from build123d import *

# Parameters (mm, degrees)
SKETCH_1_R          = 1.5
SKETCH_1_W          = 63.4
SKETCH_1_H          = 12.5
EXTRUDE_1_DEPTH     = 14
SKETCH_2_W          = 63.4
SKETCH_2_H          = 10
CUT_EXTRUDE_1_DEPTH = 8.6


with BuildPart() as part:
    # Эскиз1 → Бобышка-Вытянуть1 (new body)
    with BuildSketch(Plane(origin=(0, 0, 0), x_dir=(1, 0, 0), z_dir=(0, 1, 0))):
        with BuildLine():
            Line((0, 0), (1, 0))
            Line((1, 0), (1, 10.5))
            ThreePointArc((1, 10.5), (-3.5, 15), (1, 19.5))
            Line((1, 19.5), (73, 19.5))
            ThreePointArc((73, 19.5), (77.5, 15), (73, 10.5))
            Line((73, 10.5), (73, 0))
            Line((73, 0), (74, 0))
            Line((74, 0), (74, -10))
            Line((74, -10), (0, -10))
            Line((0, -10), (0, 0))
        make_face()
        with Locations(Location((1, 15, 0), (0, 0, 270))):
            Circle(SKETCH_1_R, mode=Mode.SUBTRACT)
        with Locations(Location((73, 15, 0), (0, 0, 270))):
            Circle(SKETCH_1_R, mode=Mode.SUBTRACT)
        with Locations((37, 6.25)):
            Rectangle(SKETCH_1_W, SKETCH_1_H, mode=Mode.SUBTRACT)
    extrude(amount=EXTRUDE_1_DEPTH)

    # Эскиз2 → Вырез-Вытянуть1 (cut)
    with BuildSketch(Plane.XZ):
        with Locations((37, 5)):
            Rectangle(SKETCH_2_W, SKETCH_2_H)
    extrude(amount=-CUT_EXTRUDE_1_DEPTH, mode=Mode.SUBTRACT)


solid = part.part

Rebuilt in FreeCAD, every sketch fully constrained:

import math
import FreeCAD as App
import Part
import Sketcher

V = App.Vector
Q = App.Units.Quantity


def add_polygon(sketch, points):
    """Adds a closed chain of lines whose ends are joined by coincident constraints."""
    first, n = sketch.GeometryCount, len(points)
    for a, b in zip(points, points[1:] + points[:1]):
        sketch.addGeometry(Part.LineSegment(App.Vector(*a, 0), App.Vector(*b, 0)), False)
    for i in range(n):
        sketch.addConstraint(Sketcher.Constraint("Coincident", first + i, 2, first + (i + 1) % n, 1))

doc = App.newDocument("Part")
params = doc.addObject("Spreadsheet::Sheet", "Params")
for row, (alias, value) in enumerate([
    ("sketch1_diameter", "3 mm"),
    ("sketch1_radius", "4.5 mm"),
    ("sketch1_width", "1 mm"),
    ("sketch1_width2", "74 mm"),
    ("sketch1_height", "10 mm"),
    ("pad1_length", "14 mm"),
    ("sketch2_height", "10 mm"),
    ("sketch2_width", "63.4 mm"),
    ("pocket1_length", "8.6 mm"),
], start=1):
    params.set(f"A{row}", alias)
    params.set(f"B{row}", "=" + value)
    params.setAlias(f"B{row}", alias)

body = doc.addObject("PartDesign::Body", "Body")

# Sketch on XZ plane
sketch1 = doc.addObject("Sketcher::SketchObject", "Sketch")
body.addObject(sketch1)
sketch1.AttachmentSupport = (doc.XZ_Plane, [""])
sketch1.MapMode = "FlatFace"
sketch1.addGeometry(Part.LineSegment(V(1, 0, 0), V(0, 0, 0)), False)  # 0
sketch1.addGeometry(Part.LineSegment(V(0, 0, 0), V(0, 10, 0)), False)  # 1
sketch1.addGeometry(Part.LineSegment(V(0, 10, 0), V(74, 10, 0)), False)  # 2
sketch1.addGeometry(Part.LineSegment(V(74, 10, 0), V(74, 0, 0)), False)  # 3
sketch1.addGeometry(Part.LineSegment(V(74, 0, 0), V(73, 0, 0)), False)  # 4
sketch1.addGeometry(Part.LineSegment(V(73, 0, 0), V(73, -10.5, 0)), False)  # 5
sketch1.addGeometry(Part.ArcOfCircle(Part.Circle(V(73, -15, 0), V(0, 0, 1), 4.5), math.radians(-90), math.radians(90)), False)  # 6
sketch1.addGeometry(Part.LineSegment(V(73, -19.5, 0), V(1, -19.5, 0)), False)  # 7
sketch1.addGeometry(Part.ArcOfCircle(Part.Circle(V(1, -15, 0), V(0, 0, 1), 4.5), math.radians(90), math.radians(270)), False)  # 8
sketch1.addGeometry(Part.LineSegment(V(1, -10.5, 0), V(1, 0, 0)), False)  # 9
add_polygon(sketch1, [(5.3, 0), (5.3, -12.5), (68.7, -12.5), (68.7, 0)])  # lines 10-13
sketch1.addGeometry(Part.Circle(V(73, -15, 0), V(0, 0, 1), 1.5), False)  # 14
sketch1.addGeometry(Part.Circle(V(1, -15, 0), V(0, 0, 1), 1.5), False)  # 15
sketch1.addConstraint([
    Sketcher.Constraint("Coincident", 0, 2, 1, 1),
    Sketcher.Constraint("Coincident", 1, 2, 2, 1),
    Sketcher.Constraint("Coincident", 2, 2, 3, 1),
    Sketcher.Constraint("Coincident", 3, 2, 4, 1),
    Sketcher.Constraint("Coincident", 4, 2, 5, 1),
    Sketcher.Constraint("Coincident", 5, 2, 6, 2),
    Sketcher.Constraint("Tangent", 6, 1, 7, 1),
    Sketcher.Constraint("Tangent", 7, 2, 8, 2),
    Sketcher.Constraint("Coincident", 8, 1, 9, 1),
    Sketcher.Constraint("Coincident", 9, 2, 0, 1),
    Sketcher.Constraint("Horizontal", 0),
    Sketcher.Constraint("Vertical", 1),
    Sketcher.Constraint("Horizontal", 2),
    Sketcher.Constraint("Vertical", 3),
    Sketcher.Constraint("Horizontal", 4),
    Sketcher.Constraint("Vertical", 5),
    Sketcher.Constraint("Horizontal", 7),
    Sketcher.Constraint("Vertical", 9),
    Sketcher.Constraint("Vertical", 10),
    Sketcher.Constraint("Horizontal", 11),
    Sketcher.Constraint("Vertical", 12),
    Sketcher.Constraint("Horizontal", 13),
    Sketcher.Constraint("Coincident", 0, 2, -1, 1),
    Sketcher.Constraint("Coincident", 14, 3, 6, 3),
    Sketcher.Constraint("Coincident", 15, 3, 8, 3),
    Sketcher.Constraint("Equal", 6, 8),
    Sketcher.Constraint("Equal", 14, 15),
    Sketcher.Constraint("PointOnObject", 3, 2, -1),
    Sketcher.Constraint("PointOnObject", 12, 2, -1),
    Sketcher.Constraint("Vertical", 14, 3, 4, 2),
    Sketcher.Constraint("Vertical", 7, 2, 8, 1),
    Sketcher.Constraint("Equal", 0, 4),
    Sketcher.Constraint("Diameter", 14, Q("3 mm")),
    Sketcher.Constraint("Radius", 6, Q("4.5 mm")),
    Sketcher.Constraint("DistanceX", 0, 2, 0, 1, Q("1 mm")),
    Sketcher.Constraint("DistanceX", 2, 1, 2, 2, Q("74 mm")),
    Sketcher.Constraint("DistanceY", 1, 1, 1, 2, Q("10 mm")),
    Sketcher.Constraint("DistanceX", 11, 1, 11, 2, Q("63.4 mm")),
    Sketcher.Constraint("DistanceY", 5, 2, 5, 1, Q("10.5 mm")),
    Sketcher.Constraint("DistanceY", 10, 2, 10, 1, Q("12.5 mm")),
    Sketcher.Constraint("DistanceX", -1, 1, 10, 2, Q("5.3 mm")),
])
sketch1.setExpression("Constraints[36]", "Params.sketch1_diameter")
sketch1.setExpression("Constraints[37]", "Params.sketch1_radius")
sketch1.setExpression("Constraints[38]", "Params.sketch1_width")
sketch1.setExpression("Constraints[39]", "Params.sketch1_width2")
sketch1.setExpression("Constraints[40]", "Params.sketch1_height")
pad1 = doc.addObject("PartDesign::Pad", "Pad")
body.addObject(pad1)
pad1.Profile = sketch1
pad1.setExpression("Length", "Params.pad1_length")
pad1.Reversed = True

# Sketch on XZ plane
sketch2 = doc.addObject("Sketcher::SketchObject", "Sketch001")
body.addObject(sketch2)
sketch2.AttachmentSupport = (doc.XZ_Plane, [""])
sketch2.MapMode = "FlatFace"
add_polygon(sketch2, [(5, 10), (5, 0), (69, 0), (69, 10)])  # lines 0-3
sketch2.addConstraint([
    Sketcher.Constraint("Vertical", 0),
    Sketcher.Constraint("Horizontal", 1),
    Sketcher.Constraint("Vertical", 2),
    Sketcher.Constraint("Horizontal", 3),
    Sketcher.Constraint("PointOnObject", 0, 2, -1),
    Sketcher.Constraint("DistanceY", 0, 2, 0, 1, Q("10 mm")),
    Sketcher.Constraint("DistanceX", 1, 1, 1, 2, Q("63.4 mm")),
    Sketcher.Constraint("DistanceX", -1, 1, 0, 2, Q("5.3 mm")),
])
sketch2.setExpression("Constraints[9]", "Params.sketch2_height")
sketch2.setExpression("Constraints[10]", "Params.sketch2_width")
pocket1 = doc.addObject("PartDesign::Pocket", "Pocket")
body.addObject(pocket1)
pocket1.Profile = sketch2
pocket1.setExpression("Length", "Params.pocket1_length")

doc.recompute()
